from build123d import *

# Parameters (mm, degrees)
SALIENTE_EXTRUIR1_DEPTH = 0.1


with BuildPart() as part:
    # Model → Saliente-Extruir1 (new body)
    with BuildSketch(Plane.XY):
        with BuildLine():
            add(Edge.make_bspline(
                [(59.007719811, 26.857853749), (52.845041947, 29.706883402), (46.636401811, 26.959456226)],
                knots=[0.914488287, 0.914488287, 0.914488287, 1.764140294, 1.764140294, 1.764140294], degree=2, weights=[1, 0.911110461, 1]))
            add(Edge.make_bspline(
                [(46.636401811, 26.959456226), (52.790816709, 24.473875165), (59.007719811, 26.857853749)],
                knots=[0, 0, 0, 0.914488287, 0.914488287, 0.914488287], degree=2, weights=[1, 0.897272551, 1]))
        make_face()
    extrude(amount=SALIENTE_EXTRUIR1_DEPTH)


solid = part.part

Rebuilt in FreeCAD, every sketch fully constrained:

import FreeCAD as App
import Part
import Sketcher

V = App.Vector

doc = App.newDocument("Part")
params = doc.addObject("Spreadsheet::Sheet", "Params")
for row, (alias, value) in enumerate([
    ("pad1_length", "0.1 mm"),
], start=1):
    params.set(f"A{row}", alias)
    params.set(f"B{row}", "=" + value)
    params.setAlias(f"B{row}", alias)

body = doc.addObject("PartDesign::Body", "Body")

# Sketch on XY plane
sketch1 = doc.addObject("Sketcher::SketchObject", "Sketch")
body.addObject(sketch1)
sketch1.AttachmentSupport = (doc.XY_Plane, [""])
sketch1.MapMode = "FlatFace"
sketch1.addGeometry(Part.BSplineCurve([V(59.00772, 26.857854, 0), V(52.845042, 29.706883, 0), V(46.636402, 26.959456, 0)], [3, 3], [0.914488287, 1.764140294], False, 2, [1, 0.911110461, 1], False), False)
sketch1.addGeometry(Part.BSplineCurve([V(46.636402, 26.959456, 0), V(52.790817, 24.473875, 0), V(59.00772, 26.857854, 0)], [3, 3], [0, 0.914488287], False, 2, [1, 0.897272551, 1], False), False)
sketch1.addConstraint(Sketcher.Constraint("Block", 0))
sketch1.addConstraint(Sketcher.Constraint("Block", 1))
pad1 = doc.addObject("PartDesign::Pad", "Pad")
body.addObject(pad1)
pad1.Profile = sketch1
pad1.setExpression("Length", "Params.pad1_length")

doc.recompute()
